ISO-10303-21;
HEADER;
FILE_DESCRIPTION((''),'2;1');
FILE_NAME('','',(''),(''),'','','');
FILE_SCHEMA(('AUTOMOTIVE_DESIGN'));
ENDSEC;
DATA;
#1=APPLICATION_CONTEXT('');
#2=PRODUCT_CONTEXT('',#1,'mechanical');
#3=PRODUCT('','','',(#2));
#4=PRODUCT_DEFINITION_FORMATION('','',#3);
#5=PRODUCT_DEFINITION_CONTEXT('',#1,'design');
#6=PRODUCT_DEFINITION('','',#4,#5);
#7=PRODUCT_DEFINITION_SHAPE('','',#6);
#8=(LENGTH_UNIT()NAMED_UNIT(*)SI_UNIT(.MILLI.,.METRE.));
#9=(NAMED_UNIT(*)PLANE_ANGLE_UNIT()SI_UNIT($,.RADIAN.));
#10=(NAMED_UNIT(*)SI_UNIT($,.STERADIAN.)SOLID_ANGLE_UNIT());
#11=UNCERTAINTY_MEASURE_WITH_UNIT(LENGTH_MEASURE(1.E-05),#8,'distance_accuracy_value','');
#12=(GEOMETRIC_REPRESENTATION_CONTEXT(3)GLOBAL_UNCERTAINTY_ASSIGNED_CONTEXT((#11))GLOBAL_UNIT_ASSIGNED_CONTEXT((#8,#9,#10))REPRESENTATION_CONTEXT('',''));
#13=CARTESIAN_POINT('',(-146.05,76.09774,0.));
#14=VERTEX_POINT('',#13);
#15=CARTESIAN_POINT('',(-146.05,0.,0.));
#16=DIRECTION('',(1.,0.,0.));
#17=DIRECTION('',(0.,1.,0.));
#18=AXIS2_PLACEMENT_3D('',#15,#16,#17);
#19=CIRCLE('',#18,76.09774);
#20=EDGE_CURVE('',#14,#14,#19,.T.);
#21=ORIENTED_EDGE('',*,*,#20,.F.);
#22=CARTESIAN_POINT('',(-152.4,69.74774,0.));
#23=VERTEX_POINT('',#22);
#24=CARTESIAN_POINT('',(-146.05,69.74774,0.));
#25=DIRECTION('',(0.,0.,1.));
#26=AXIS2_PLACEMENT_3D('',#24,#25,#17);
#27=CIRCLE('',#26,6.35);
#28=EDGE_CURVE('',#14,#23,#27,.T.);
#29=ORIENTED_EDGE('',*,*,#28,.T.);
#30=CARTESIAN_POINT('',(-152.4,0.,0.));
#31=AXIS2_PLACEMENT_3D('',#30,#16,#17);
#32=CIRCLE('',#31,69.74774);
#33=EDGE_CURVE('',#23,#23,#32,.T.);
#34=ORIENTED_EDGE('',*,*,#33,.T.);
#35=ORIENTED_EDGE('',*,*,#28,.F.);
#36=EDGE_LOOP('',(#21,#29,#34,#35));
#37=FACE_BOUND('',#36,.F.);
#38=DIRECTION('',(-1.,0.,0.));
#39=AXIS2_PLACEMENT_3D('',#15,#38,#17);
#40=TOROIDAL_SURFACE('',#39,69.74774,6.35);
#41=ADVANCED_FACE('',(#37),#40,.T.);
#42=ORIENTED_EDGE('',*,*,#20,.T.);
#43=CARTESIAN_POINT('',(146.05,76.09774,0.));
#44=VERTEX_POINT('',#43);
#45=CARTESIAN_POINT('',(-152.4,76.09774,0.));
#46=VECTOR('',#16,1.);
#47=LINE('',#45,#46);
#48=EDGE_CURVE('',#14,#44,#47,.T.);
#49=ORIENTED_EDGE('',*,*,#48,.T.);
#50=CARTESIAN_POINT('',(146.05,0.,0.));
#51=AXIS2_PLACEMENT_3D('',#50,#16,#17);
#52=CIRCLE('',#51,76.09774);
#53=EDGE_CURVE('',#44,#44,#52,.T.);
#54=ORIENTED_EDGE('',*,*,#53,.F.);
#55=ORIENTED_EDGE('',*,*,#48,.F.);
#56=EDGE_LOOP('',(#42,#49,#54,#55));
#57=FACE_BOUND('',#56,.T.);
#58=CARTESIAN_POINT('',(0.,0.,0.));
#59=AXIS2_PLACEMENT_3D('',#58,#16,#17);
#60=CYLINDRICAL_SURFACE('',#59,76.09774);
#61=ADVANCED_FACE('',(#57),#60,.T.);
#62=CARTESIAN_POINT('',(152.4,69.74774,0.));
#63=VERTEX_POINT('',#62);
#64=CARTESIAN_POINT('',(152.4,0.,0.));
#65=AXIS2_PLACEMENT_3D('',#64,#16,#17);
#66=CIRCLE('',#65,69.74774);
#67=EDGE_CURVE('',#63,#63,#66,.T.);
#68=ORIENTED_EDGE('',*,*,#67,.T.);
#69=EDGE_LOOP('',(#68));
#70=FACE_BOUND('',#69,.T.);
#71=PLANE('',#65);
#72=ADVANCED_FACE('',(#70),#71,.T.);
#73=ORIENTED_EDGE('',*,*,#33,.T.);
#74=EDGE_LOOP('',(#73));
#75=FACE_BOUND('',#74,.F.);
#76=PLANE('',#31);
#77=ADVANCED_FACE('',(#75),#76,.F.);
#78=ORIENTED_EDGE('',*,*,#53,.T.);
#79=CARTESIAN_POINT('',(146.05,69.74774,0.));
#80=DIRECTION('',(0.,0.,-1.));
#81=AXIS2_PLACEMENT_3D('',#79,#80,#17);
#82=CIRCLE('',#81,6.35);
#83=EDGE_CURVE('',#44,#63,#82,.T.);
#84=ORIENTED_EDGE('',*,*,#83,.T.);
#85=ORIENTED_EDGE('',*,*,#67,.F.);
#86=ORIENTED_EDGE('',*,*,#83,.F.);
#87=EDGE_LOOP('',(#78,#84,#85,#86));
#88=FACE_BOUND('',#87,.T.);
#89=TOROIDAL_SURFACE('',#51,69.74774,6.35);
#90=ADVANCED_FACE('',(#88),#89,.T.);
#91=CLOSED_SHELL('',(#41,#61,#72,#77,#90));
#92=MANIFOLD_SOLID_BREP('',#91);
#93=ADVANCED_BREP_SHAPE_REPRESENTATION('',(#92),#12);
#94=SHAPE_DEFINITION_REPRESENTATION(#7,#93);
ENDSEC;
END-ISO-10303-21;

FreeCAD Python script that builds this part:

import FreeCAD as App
import Part
import Sketcher

V = App.Vector
Q = App.Units.Quantity


def edges_at(feature, points):
    """Names of the edges that pass closest to the given points."""
    edges = feature.Shape.Edges
    near = lambda p: min(range(len(edges)), key=lambda i: edges[i].distToShape(Part.Vertex(*p))[0])
    return sorted({f"Edge{near(p) + 1}" for p in points})

doc = App.newDocument("Part")
body = doc.addObject("PartDesign::Body", "Body")

# Sketch on YZ plane
sketch1 = body.newObject("Sketcher::SketchObject", "Sketch")
sketch1.AttachmentSupport = (doc.getObject("YZ_Plane"), [""])
sketch1.MapMode = "FlatFace"
sketch1.addGeometry(Part.Circle(V(0, 0, 0), V(0, 0, 1), 76), False)
sketch1.addConstraint([
    Sketcher.Constraint("Coincident", 0, 3, -1, 1),
    Sketcher.Constraint("Diameter", 0, 152.19548),
])
pad1 = body.newObject("PartDesign::Pad", "Pad")
pad1.Profile = sketch1
pad1.Type = "TwoLengths"
pad1.Length = Q("6 in")
pad1.Length2 = Q("6 in")
doc.recompute()

fillet = body.newObject("PartDesign::Fillet", "Fillet")
fillet.Base = (pad1, edges_at(pad1, [(152.4, -76.098, 0)]))
fillet.Radius = Q("0.25 in")
doc.recompute()

fillet2 = body.newObject("PartDesign::Fillet", "Fillet001")
fillet2.Base = (fillet, edges_at(fillet, [(-152.4, -76.098, 0)]))
fillet2.Radius = Q("0.25 in")

doc.recompute()
